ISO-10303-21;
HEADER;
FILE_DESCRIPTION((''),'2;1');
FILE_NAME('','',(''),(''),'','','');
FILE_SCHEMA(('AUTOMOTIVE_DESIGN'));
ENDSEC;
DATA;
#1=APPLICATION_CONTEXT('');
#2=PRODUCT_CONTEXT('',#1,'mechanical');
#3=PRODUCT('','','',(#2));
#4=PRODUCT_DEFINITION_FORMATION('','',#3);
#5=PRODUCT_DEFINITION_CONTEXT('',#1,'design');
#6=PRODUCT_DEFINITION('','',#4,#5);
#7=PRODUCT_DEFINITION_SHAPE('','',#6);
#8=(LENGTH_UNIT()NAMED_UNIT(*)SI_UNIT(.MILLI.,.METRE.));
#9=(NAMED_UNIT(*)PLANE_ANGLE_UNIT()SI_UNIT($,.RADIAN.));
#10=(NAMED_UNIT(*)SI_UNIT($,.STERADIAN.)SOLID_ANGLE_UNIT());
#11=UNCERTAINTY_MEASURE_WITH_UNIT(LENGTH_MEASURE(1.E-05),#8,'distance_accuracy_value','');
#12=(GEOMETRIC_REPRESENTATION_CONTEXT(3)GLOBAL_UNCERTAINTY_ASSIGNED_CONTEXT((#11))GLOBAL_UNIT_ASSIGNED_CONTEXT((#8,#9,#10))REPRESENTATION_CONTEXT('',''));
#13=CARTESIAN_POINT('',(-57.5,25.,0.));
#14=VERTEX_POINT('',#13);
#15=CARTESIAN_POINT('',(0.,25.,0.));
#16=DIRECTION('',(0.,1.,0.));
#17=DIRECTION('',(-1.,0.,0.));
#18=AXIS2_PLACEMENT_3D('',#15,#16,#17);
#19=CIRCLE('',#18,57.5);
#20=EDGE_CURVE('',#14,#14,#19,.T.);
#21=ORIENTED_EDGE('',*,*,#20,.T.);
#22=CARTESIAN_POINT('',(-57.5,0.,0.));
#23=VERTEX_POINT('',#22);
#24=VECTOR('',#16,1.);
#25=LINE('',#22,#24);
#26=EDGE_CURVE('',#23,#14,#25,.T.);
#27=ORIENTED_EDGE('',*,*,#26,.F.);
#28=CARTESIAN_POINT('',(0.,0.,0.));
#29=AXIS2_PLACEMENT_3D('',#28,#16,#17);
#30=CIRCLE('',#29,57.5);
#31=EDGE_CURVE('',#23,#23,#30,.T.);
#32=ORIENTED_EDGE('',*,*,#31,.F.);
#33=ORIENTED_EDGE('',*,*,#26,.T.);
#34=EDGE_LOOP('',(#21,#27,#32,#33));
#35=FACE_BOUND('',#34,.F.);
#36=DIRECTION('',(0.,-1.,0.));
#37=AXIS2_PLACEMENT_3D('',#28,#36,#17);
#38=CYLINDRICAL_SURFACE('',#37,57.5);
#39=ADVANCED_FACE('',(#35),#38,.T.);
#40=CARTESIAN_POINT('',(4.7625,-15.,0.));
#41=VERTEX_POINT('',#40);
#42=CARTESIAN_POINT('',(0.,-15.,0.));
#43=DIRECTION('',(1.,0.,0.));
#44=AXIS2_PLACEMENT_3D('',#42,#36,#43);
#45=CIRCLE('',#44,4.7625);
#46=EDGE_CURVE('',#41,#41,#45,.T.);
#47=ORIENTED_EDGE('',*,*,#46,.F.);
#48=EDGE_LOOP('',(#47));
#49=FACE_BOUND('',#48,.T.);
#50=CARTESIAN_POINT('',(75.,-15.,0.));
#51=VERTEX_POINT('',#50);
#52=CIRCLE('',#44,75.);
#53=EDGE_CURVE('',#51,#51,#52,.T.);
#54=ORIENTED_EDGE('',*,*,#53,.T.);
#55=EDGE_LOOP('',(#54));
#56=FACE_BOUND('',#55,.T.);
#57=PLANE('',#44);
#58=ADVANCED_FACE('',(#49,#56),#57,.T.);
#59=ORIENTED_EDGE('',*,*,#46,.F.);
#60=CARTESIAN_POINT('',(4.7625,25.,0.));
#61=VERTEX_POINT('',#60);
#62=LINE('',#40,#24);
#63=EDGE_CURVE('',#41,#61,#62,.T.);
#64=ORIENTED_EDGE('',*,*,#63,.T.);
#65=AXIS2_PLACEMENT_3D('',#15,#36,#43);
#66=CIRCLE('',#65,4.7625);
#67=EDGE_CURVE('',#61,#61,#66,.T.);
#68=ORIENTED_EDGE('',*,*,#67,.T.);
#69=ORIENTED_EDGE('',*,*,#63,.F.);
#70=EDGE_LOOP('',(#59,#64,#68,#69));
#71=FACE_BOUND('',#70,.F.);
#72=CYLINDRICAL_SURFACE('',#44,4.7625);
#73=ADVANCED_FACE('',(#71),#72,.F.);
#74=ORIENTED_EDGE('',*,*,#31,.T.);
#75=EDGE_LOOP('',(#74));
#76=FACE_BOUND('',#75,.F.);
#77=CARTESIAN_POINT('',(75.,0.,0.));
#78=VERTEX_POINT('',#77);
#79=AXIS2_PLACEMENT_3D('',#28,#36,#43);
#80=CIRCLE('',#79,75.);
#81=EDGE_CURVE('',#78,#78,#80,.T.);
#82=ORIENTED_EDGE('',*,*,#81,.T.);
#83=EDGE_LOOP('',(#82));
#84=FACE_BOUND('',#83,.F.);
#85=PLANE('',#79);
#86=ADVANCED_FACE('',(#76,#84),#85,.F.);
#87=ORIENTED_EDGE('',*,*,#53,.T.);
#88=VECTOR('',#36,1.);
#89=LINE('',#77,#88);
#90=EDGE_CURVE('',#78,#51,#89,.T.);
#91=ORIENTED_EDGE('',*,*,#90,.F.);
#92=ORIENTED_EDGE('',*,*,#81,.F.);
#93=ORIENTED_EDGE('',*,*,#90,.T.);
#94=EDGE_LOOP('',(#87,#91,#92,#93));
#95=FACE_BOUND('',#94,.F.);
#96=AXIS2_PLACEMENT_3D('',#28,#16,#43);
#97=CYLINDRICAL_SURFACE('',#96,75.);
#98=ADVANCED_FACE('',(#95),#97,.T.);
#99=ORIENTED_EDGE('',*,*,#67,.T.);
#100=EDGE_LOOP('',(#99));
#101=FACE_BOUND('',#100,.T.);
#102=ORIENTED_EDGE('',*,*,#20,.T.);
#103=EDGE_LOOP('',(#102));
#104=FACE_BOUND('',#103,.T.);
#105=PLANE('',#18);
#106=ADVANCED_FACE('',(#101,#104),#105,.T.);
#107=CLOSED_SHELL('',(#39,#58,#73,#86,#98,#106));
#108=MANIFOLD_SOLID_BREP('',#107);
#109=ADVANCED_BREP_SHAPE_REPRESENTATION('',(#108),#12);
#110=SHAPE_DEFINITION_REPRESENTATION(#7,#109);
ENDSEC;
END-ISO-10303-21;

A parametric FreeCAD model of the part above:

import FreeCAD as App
import Part
import Sketcher

doc = App.newDocument("Part")
body = doc.addObject("PartDesign::Body", "Body")

# Sketch on XZ plane
sketch1 = doc.addObject("Sketcher::SketchObject", "Sketch")
body.addObject(sketch1)
sketch1.AttachmentSupport = (doc.XZ_Plane, [""])
sketch1.MapMode = "FlatFace"
sketch1.addGeometry(Part.Circle(App.Vector(0, 0, 0), App.Vector(0, 0, 1), 75), False)
sketch1.addConstraint(Sketcher.Constraint("Coincident", 0, 3, -1, 1))
sketch1.addConstraint(Sketcher.Constraint("Diameter", 0, 150.0))
pad1 = doc.addObject("PartDesign::Pad", "Pad")
body.addObject(pad1)
pad1.Profile = sketch1
pad1.Length = 15

# Sketch on XZ plane
sketch2 = doc.addObject("Sketcher::SketchObject", "Sketch001")
body.addObject(sketch2)
sketch2.AttachmentSupport = (doc.XZ_Plane, [""])
sketch2.MapMode = "FlatFace"
sketch2.addGeometry(Part.Circle(App.Vector(0, 0, 0), App.Vector(0, 0, 1), 58), False)
sketch2.addConstraint(Sketcher.Constraint("Coincident", 0, 3, -1, 1))
sketch2.addConstraint(Sketcher.Constraint("Diameter", 0, 115.0))
pad2 = doc.addObject("PartDesign::Pad", "Pad001")
body.addObject(pad2)
pad2.Profile = sketch2
pad2.Length = 25
pad2.Reversed = True

# Sketch on XZ plane
sketch3 = doc.addObject("Sketcher::SketchObject", "Sketch002")
body.addObject(sketch3)
sketch3.AttachmentSupport = (doc.XZ_Plane, [""])
sketch3.MapMode = "FlatFace"
sketch3.AttachmentOffset = App.Placement(App.Vector(0, 0, 15), App.Rotation())
sketch3.addGeometry(Part.Circle(App.Vector(0, 0, 0), App.Vector(0, 0, 1), 4.8), False)
sketch3.addConstraint(Sketcher.Constraint("Coincident", 0, 3, -1, 1))
sketch3.addConstraint(Sketcher.Constraint("Diameter", 0, 9.525))
pocket1 = doc.addObject("PartDesign::Pocket", "Pocket")
body.addObject(pocket1)
pocket1.Profile = sketch3
pocket1.Type = "ThroughAll"

doc.recompute()
